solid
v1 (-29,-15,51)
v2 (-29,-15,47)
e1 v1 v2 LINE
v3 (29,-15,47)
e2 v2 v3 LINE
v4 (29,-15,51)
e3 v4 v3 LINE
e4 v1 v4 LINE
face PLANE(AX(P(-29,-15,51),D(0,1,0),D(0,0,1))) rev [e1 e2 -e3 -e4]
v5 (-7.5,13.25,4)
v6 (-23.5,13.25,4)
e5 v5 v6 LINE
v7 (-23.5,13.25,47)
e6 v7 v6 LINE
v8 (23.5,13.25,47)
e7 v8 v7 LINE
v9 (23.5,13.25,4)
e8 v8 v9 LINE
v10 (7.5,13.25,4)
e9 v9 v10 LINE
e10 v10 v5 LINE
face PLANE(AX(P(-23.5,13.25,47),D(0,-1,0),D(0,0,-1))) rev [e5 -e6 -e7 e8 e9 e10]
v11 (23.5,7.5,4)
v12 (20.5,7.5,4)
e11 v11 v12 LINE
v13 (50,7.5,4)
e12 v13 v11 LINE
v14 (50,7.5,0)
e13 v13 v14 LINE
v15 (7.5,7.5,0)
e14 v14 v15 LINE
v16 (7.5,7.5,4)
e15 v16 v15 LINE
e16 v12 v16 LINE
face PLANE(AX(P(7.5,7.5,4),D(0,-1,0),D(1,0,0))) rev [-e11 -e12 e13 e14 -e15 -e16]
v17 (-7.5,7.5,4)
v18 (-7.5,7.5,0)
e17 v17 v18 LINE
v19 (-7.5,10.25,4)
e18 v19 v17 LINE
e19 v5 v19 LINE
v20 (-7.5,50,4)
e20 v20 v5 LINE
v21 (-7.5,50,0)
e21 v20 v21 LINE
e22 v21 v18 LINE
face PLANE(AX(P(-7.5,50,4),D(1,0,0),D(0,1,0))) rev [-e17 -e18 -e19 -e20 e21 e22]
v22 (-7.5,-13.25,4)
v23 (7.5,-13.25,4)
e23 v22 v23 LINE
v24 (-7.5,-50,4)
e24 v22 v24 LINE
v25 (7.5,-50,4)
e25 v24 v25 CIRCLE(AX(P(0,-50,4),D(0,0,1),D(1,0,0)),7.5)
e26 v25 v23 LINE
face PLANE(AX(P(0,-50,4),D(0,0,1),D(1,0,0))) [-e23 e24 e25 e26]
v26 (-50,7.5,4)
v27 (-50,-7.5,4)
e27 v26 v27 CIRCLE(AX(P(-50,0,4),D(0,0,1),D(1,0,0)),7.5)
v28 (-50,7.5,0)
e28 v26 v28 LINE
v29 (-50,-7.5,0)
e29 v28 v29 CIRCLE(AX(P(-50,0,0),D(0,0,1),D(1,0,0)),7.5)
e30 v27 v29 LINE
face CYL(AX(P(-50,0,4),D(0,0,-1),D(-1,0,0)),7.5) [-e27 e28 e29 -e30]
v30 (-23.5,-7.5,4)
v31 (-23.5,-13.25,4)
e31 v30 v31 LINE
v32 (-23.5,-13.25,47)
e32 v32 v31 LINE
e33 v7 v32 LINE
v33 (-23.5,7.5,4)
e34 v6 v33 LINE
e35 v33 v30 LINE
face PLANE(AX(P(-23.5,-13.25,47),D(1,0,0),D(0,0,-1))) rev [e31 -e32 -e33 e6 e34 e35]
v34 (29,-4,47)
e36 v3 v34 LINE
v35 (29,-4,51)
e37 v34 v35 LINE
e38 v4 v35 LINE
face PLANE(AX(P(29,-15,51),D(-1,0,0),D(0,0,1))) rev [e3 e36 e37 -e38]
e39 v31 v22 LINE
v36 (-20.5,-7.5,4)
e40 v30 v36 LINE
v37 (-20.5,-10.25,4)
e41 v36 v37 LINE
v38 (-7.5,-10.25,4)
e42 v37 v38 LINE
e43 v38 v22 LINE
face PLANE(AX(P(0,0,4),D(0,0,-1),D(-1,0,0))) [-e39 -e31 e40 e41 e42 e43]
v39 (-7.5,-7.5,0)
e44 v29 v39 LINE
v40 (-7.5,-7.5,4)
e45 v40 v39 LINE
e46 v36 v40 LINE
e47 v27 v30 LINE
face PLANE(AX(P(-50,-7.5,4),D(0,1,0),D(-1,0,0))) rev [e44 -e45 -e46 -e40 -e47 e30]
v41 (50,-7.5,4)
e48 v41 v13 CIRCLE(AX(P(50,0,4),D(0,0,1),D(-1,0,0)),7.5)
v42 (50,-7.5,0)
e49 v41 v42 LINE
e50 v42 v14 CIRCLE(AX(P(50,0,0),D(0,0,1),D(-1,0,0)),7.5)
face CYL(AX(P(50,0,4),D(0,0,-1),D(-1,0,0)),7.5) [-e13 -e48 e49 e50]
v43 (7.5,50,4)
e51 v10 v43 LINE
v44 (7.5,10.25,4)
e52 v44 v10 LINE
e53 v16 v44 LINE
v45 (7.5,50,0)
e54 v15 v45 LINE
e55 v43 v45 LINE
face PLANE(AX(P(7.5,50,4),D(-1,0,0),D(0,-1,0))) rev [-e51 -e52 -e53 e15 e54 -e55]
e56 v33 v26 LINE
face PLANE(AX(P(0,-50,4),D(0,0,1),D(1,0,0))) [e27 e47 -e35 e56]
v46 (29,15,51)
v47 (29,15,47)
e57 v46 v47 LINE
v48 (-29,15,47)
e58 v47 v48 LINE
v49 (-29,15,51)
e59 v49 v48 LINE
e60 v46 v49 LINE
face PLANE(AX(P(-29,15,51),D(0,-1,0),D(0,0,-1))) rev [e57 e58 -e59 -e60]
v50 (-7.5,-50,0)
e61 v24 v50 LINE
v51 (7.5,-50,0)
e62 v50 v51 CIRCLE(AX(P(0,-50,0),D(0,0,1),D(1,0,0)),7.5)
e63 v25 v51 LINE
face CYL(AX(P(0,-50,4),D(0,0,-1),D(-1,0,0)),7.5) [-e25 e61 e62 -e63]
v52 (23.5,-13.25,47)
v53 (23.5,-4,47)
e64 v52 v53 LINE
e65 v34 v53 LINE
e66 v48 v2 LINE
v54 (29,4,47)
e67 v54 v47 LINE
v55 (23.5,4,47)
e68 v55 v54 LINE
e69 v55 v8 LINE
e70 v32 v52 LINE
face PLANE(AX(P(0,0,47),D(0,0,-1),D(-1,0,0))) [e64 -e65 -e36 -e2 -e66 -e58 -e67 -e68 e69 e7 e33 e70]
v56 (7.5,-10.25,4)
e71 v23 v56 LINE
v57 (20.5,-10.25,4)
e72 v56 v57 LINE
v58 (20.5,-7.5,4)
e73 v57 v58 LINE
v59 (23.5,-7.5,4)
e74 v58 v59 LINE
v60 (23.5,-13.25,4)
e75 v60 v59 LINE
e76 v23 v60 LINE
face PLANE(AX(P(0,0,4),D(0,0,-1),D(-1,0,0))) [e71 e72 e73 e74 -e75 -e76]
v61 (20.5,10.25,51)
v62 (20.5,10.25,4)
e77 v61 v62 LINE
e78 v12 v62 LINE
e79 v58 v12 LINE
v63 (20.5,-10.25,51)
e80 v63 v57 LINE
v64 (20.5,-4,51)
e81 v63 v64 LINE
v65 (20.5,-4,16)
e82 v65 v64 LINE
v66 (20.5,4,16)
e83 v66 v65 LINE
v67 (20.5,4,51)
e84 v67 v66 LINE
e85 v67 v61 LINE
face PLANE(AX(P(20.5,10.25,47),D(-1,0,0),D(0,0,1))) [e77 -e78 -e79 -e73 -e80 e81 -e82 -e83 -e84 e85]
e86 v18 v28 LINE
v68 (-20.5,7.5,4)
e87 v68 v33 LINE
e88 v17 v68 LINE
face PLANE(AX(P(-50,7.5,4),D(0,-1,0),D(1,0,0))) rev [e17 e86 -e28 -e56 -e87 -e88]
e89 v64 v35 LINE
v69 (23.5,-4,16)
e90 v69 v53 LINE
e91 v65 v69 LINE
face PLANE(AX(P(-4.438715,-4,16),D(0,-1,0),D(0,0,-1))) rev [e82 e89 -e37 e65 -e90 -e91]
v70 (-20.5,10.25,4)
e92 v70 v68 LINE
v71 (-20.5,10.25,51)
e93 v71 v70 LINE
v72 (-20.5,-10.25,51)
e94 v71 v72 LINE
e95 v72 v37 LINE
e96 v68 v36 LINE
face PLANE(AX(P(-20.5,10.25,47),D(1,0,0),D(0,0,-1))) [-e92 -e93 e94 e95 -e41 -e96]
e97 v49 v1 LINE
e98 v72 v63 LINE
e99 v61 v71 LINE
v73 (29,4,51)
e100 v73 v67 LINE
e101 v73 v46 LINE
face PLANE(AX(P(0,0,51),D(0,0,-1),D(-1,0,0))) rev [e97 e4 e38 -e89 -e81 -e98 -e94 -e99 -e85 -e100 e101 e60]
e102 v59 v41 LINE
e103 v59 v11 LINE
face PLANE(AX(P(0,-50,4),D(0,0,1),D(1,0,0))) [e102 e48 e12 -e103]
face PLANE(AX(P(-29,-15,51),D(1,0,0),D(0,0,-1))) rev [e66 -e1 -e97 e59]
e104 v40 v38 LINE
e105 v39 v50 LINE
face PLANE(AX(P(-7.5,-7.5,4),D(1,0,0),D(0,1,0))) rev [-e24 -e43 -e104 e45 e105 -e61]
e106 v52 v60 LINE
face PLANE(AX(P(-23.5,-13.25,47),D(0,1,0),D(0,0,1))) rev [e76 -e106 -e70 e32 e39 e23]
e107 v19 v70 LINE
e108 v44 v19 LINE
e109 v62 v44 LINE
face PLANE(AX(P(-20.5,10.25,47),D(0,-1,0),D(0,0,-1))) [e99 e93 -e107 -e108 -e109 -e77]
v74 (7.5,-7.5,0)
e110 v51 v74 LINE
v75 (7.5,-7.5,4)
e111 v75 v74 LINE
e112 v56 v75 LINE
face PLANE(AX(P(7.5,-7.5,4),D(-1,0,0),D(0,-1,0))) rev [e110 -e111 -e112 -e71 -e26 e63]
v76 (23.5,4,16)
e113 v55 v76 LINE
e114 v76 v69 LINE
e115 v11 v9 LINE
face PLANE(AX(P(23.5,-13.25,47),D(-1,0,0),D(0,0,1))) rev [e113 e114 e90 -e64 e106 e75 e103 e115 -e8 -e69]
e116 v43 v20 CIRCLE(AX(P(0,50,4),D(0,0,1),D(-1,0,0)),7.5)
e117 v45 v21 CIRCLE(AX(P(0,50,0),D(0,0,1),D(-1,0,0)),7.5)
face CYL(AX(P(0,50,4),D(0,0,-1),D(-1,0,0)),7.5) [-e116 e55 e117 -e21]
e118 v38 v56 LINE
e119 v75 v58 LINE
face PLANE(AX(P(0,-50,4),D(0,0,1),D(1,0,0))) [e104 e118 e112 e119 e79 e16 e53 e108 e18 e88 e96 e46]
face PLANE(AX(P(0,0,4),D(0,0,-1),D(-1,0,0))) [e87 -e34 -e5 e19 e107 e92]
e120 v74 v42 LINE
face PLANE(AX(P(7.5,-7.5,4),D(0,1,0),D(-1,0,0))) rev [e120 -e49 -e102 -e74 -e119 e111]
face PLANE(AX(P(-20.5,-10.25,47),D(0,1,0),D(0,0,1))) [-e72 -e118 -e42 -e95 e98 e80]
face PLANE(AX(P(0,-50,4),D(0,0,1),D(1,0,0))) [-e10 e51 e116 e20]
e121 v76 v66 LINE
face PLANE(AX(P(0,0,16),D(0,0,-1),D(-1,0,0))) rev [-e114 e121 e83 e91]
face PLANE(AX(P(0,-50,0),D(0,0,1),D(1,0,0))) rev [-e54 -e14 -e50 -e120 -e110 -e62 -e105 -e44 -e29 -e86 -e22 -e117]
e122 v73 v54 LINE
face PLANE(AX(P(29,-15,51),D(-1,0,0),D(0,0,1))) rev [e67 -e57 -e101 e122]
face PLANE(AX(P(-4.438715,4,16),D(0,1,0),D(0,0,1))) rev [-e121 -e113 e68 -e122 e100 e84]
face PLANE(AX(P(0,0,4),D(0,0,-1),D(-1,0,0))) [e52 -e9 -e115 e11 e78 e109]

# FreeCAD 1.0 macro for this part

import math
import FreeCAD as App
import Part
import Sketcher

V = App.Vector
Q = App.Units.Quantity

doc = App.newDocument("Part")
params = doc.addObject("Spreadsheet::Sheet", "Params")
for row, (alias, value) in enumerate([
    ("sketch1_radius", "7.5 mm"),
    ("sketch1_width", "42.5 mm"),
    ("pad1_length", "4 mm"),
    ("sketch2_width", "47 mm"),
    ("sketch2_width2", "41 mm"),
    ("sketch2_height", "26.5 mm"),
    ("sketch2_height2", "20.5 mm"),
    ("pad2_length", "43 mm"),
    ("sketch3_width", "58 mm"),
    ("sketch3_width2", "41 mm"),
    ("sketch3_height", "30 mm"),
    ("sketch3_height2", "20.5 mm"),
    ("pad3_length", "4 mm"),
    ("sketch4_height", "8 mm"),
    ("pocket1_length", "35 mm"),
], start=1):
    params.set(f"A{row}", alias)
    params.set(f"B{row}", "=" + value)
    params.setAlias(f"B{row}", alias)

body = doc.addObject("PartDesign::Body", "Body")

# Sketch on XY plane
sketch1 = body.newObject("Sketcher::SketchObject", "Sketch")
sketch1.AttachmentSupport = (doc.getObject("XY_Plane"), [""])
sketch1.MapMode = "FlatFace"
sketch1.addGeometry([
    Part.LineSegment(V(-7.5, 50, 0), V(-7.5, 7.5, 0)),  # 0
    Part.LineSegment(V(-7.5, 7.5, 0), V(-50, 7.5, 0)),  # 1
    Part.ArcOfCircle(Part.Circle(V(-50, 0, 0), V(0, 0, 1), 7.5), math.radians(90), math.radians(270)),  # 2
    Part.LineSegment(V(-50, -7.5, 0), V(-7.5, -7.5, 0)),  # 3
    Part.LineSegment(V(-7.5, -7.5, 0), V(-7.5, -50, 0)),  # 4
    Part.ArcOfCircle(Part.Circle(V(0, -50, 0), V(0, 0, 1), 7.5), math.radians(180), math.radians(360)),  # 5
    Part.LineSegment(V(7.5, -50, 0), V(7.5, -7.5, 0)),  # 6
    Part.LineSegment(V(7.5, -7.5, 0), V(50, -7.5, 0)),  # 7
    Part.ArcOfCircle(Part.Circle(V(50, 0, 0), V(0, 0, 1), 7.5), math.radians(-90), math.radians(90)),  # 8
    Part.LineSegment(V(50, 7.5, 0), V(7.5, 7.5, 0)),  # 9
    Part.LineSegment(V(7.5, 7.5, 0), V(7.5, 50, 0)),  # 10
    Part.ArcOfCircle(Part.Circle(V(0, 50, 0), V(0, 0, 1), 7.5), math.radians(0), math.radians(180)),  # 11
], False)
sketch1.addConstraint([
    Sketcher.Constraint("Coincident", 0, 2, 1, 1),
    Sketcher.Constraint("Tangent", 1, 2, 2, 1),
    Sketcher.Constraint("Tangent", 2, 2, 3, 1),
    Sketcher.Constraint("Coincident", 3, 2, 4, 1),
    Sketcher.Constraint("Tangent", 4, 2, 5, 1),
    Sketcher.Constraint("Tangent", 5, 2, 6, 1),
    Sketcher.Constraint("Coincident", 6, 2, 7, 1),
    Sketcher.Constraint("Tangent", 7, 2, 8, 1),
    Sketcher.Constraint("Tangent", 8, 2, 9, 1),
    Sketcher.Constraint("Coincident", 9, 2, 10, 1),
    Sketcher.Constraint("Tangent", 10, 2, 11, 1),
    Sketcher.Constraint("Tangent", 11, 2, 0, 1),
    Sketcher.Constraint("Vertical", 0),
    Sketcher.Constraint("Horizontal", 1),
    Sketcher.Constraint("Horizontal", 3),
    Sketcher.Constraint("Vertical", 4),
    Sketcher.Constraint("Vertical", 6),
    Sketcher.Constraint("Horizontal", 7),
    Sketcher.Constraint("Horizontal", 9),
    Sketcher.Constraint("Vertical", 10),
    Sketcher.Constraint("Equal", 2, 5),
    Sketcher.Constraint("Equal", 5, 8),
    Sketcher.Constraint("Equal", 8, 11),
    Sketcher.Constraint("Symmetric", 2, 3, 8, 3, -1, 1),
    Sketcher.Constraint("Symmetric", 5, 3, 11, 3, -1, 1),
    Sketcher.Constraint("Symmetric", 3, 2, 6, 2, -2),
    Sketcher.Constraint("Equal", 9, 0),
    Sketcher.Constraint("Radius", 2, Q("7.5 mm")),
    Sketcher.Constraint("DistanceX", 1, 2, 1, 1, Q("42.5 mm")),
])
sketch1.setExpression("Constraints[27]", "Params.sketch1_radius")
sketch1.setExpression("Constraints[28]", "Params.sketch1_width")
pad1 = body.newObject("PartDesign::Pad", "Pad")
pad1.Profile = sketch1
pad1.setExpression("Length", "Params.pad1_length")

# Sketch on XY plane
sketch2 = body.newObject("Sketcher::SketchObject", "Sketch001")
sketch2.AttachmentSupport = (doc.getObject("XY_Plane"), [""])
sketch2.MapMode = "FlatFace"
sketch2.AttachmentOffset = App.Placement(V(0, 0, 4), App.Rotation())
sketch2.addGeometry([
    Part.LineSegment(V(-23.5, 13.25, 0), V(-23.5, -13.25, 0)),  # 0
    Part.LineSegment(V(-23.5, -13.25, 0), V(23.5, -13.25, 0)),  # 1
    Part.LineSegment(V(23.5, -13.25, 0), V(23.5, 13.25, 0)),  # 2
    Part.LineSegment(V(23.5, 13.25, 0), V(-23.5, 13.25, 0)),  # 3
    Part.LineSegment(V(20.5, -10.25, 0), V(-20.5, -10.25, 0)),  # 4
    Part.LineSegment(V(-20.5, -10.25, 0), V(-20.5, 10.25, 0)),  # 5
    Part.LineSegment(V(-20.5, 10.25, 0), V(20.5, 10.25, 0)),  # 6
    Part.LineSegment(V(20.5, 10.25, 0), V(20.5, -10.25, 0)),  # 7
], False)
sketch2.addConstraint([
    Sketcher.Constraint("Coincident", 0, 2, 1, 1),
    Sketcher.Constraint("Coincident", 1, 2, 2, 1),
    Sketcher.Constraint("Coincident", 2, 2, 3, 1),
    Sketcher.Constraint("Coincident", 3, 2, 0, 1),
    Sketcher.Constraint("Coincident", 4, 2, 5, 1),
    Sketcher.Constraint("Coincident", 5, 2, 6, 1),
    Sketcher.Constraint("Coincident", 6, 2, 7, 1),
    Sketcher.Constraint("Coincident", 7, 2, 4, 1),
    Sketcher.Constraint("Vertical", 0),
    Sketcher.Constraint("Horizontal", 1),
    Sketcher.Constraint("Vertical", 2),
    Sketcher.Constraint("Horizontal", 3),
    Sketcher.Constraint("Horizontal", 4),
    Sketcher.Constraint("Vertical", 5),
    Sketcher.Constraint("Horizontal", 6),
    Sketcher.Constraint("Vertical", 7),
    Sketcher.Constraint("Symmetric", 0, 2, 2, 2, -1, 1),
    Sketcher.Constraint("Symmetric", 4, 2, 6, 2, -1, 1),
    Sketcher.Constraint("DistanceX", 1, 1, 1, 2, Q("47 mm")),
    Sketcher.Constraint("DistanceX", 4, 2, 4, 1, Q("41 mm")),
    Sketcher.Constraint("DistanceY", 0, 2, 0, 1, Q("26.5 mm")),
    Sketcher.Constraint("DistanceY", 5, 1, 5, 2, Q("20.5 mm")),
])
sketch2.setExpression("Constraints[18]", "Params.sketch2_width")
sketch2.setExpression("Constraints[19]", "Params.sketch2_width2")
sketch2.setExpression("Constraints[20]", "Params.sketch2_height")
sketch2.setExpression("Constraints[21]", "Params.sketch2_height2")
pad2 = body.newObject("PartDesign::Pad", "Pad001")
pad2.Profile = sketch2
pad2.setExpression("Length", "Params.pad2_length")

# Sketch on XY plane
sketch3 = body.newObject("Sketcher::SketchObject", "Sketch002")
sketch3.AttachmentSupport = (doc.getObject("XY_Plane"), [""])
sketch3.MapMode = "FlatFace"
sketch3.AttachmentOffset = App.Placement(V(0, 0, 47), App.Rotation())
sketch3.addGeometry([
    Part.LineSegment(V(-29, 15, 0), V(-29, -15, 0)),  # 0
    Part.LineSegment(V(-29, -15, 0), V(29, -15, 0)),  # 1
    Part.LineSegment(V(29, -15, 0), V(29, 15, 0)),  # 2
    Part.LineSegment(V(29, 15, 0), V(-29, 15, 0)),  # 3
    Part.LineSegment(V(20.5, -10.25, 0), V(-20.5, -10.25, 0)),  # 4
    Part.LineSegment(V(-20.5, -10.25, 0), V(-20.5, 10.25, 0)),  # 5
    Part.LineSegment(V(-20.5, 10.25, 0), V(20.5, 10.25, 0)),  # 6
    Part.LineSegment(V(20.5, 10.25, 0), V(20.5, -10.25, 0)),  # 7
], False)
sketch3.addConstraint([
    Sketcher.Constraint("Coincident", 0, 2, 1, 1),
    Sketcher.Constraint("Coincident", 1, 2, 2, 1),
    Sketcher.Constraint("Coincident", 2, 2, 3, 1),
    Sketcher.Constraint("Coincident", 3, 2, 0, 1),
    Sketcher.Constraint("Coincident", 4, 2, 5, 1),
    Sketcher.Constraint("Coincident", 5, 2, 6, 1),
    Sketcher.Constraint("Coincident", 6, 2, 7, 1),
    Sketcher.Constraint("Coincident", 7, 2, 4, 1),
    Sketcher.Constraint("Vertical", 0),
    Sketcher.Constraint("Horizontal", 1),
    Sketcher.Constraint("Vertical", 2),
    Sketcher.Constraint("Horizontal", 3),
    Sketcher.Constraint("Horizontal", 4),
    Sketcher.Constraint("Vertical", 5),
    Sketcher.Constraint("Horizontal", 6),
    Sketcher.Constraint("Vertical", 7),
    Sketcher.Constraint("Symmetric", 0, 2, 2, 2, -1, 1),
    Sketcher.Constraint("Symmetric", 4, 2, 6, 2, -1, 1),
    Sketcher.Constraint("DistanceX", 1, 1, 1, 2, Q("58 mm")),
    Sketcher.Constraint("DistanceX", 4, 2, 4, 1, Q("41 mm")),
    Sketcher.Constraint("DistanceY", 0, 2, 0, 1, Q("30 mm")),
    Sketcher.Constraint("DistanceY", 5, 1, 5, 2, Q("20.5 mm")),
])
sketch3.setExpression("Constraints[18]", "Params.sketch3_width")
sketch3.setExpression("Constraints[19]", "Params.sketch3_width2")
sketch3.setExpression("Constraints[20]", "Params.sketch3_height")
sketch3.setExpression("Constraints[21]", "Params.sketch3_height2")
pad3 = body.newObject("PartDesign::Pad", "Pad002")
pad3.Profile = sketch3
pad3.setExpression("Length", "Params.pad3_length")

# Sketch on XY plane
sketch4 = body.newObject("Sketcher::SketchObject", "Sketch003")
sketch4.AttachmentSupport = (doc.getObject("XY_Plane"), [""])
sketch4.MapMode = "FlatFace"
sketch4.AttachmentOffset = App.Placement(V(0, 0, 51), App.Rotation())
sketch4.addGeometry([
    Part.LineSegment(V(-4.438715, 4, 0), V(-4.438715, -4, 0)),
    Part.LineSegment(V(-4.438715, -4, 0), V(38.997283, -4, 0)),
    Part.LineSegment(V(38.997283, -4, 0), V(38.997283, 4, 0)),
    Part.LineSegment(V(38.997283, 4, 0), V(-4.438715, 4, 0)),
], False)
sketch4.addConstraint([
    Sketcher.Constraint("Coincident", 0, 2, 1, 1),
    Sketcher.Constraint("Coincident", 1, 2, 2, 1),
    Sketcher.Constraint("Coincident", 2, 2, 3, 1),
    Sketcher.Constraint("Coincident", 3, 2, 0, 1),
    Sketcher.Constraint("Vertical", 0),
    Sketcher.Constraint("Horizontal", 1),
    Sketcher.Constraint("Vertical", 2),
    Sketcher.Constraint("Horizontal", 3),
    Sketcher.Constraint("DistanceY", 0, 2, 0, 1, Q("8 mm")),
    Sketcher.Constraint("DistanceY", 0, 2, -1, 1, Q("4 mm")),
    Sketcher.Constraint("DistanceX", 1, 1, 1, 2, Q("43.435998 mm")),
    Sketcher.Constraint("DistanceX", 0, 2, -1, 1, Q("4.438715 mm")),
])
sketch4.setExpression("Constraints[8]", "Params.sketch4_height")
pocket1 = body.newObject("PartDesign::Pocket", "Pocket")
pocket1.Profile = sketch4
pocket1.setExpression("Length", "Params.pocket1_length")

doc.recompute()
